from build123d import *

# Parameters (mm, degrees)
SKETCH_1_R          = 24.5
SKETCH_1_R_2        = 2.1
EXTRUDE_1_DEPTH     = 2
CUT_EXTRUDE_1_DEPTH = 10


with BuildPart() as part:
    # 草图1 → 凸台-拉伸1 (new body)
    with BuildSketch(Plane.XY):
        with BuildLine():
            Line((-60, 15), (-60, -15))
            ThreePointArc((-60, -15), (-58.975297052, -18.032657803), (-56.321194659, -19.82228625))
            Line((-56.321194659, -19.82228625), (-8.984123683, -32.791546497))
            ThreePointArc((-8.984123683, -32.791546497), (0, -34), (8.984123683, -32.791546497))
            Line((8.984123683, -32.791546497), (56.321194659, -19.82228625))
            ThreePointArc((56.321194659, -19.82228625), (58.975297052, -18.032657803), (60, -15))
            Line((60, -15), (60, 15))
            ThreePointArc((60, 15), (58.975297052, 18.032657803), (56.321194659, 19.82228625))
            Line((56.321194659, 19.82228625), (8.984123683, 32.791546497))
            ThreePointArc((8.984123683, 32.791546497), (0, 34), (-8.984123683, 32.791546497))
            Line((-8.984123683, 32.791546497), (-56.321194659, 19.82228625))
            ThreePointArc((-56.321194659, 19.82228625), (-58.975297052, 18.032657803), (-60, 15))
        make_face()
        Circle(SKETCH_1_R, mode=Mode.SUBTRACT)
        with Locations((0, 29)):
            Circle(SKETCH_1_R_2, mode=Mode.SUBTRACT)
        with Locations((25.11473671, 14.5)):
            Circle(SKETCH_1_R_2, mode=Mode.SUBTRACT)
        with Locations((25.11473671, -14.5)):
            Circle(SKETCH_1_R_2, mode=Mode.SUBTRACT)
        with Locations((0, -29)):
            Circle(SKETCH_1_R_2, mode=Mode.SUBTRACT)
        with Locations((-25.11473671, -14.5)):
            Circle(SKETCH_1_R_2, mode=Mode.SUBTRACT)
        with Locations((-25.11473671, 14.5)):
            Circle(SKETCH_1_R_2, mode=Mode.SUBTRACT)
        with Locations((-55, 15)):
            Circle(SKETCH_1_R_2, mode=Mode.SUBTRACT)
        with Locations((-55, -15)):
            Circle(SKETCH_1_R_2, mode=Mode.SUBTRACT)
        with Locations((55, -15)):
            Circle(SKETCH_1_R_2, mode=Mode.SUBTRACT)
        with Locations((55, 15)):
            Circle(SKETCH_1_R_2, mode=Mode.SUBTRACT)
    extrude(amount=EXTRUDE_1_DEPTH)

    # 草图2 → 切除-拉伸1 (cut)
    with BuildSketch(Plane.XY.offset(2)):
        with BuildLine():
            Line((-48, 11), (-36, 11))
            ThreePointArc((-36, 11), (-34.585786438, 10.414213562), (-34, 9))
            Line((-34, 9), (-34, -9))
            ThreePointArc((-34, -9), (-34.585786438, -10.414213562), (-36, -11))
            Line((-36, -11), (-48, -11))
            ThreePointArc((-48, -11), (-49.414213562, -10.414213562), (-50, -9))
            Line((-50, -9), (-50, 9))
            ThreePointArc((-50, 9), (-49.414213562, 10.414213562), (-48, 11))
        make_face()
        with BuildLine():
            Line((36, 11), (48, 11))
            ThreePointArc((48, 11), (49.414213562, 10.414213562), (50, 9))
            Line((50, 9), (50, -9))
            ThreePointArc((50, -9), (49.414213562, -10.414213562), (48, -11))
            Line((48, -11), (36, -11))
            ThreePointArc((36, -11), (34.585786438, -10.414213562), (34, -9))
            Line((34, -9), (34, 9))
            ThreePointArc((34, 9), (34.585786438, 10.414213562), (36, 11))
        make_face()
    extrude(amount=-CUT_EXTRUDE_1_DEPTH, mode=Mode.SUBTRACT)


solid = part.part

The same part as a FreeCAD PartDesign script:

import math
import FreeCAD as App
import Part
import Sketcher

doc = App.newDocument("Part")
params = doc.addObject("Spreadsheet::Sheet", "Params")
for row, (alias, value) in enumerate([
    ("sketch1_diameter", "49 mm"),
    ("sketch1_radius", "5 mm"),
    ("sketch1_radius2", "34 mm"),
    ("sketch1_diameter2", "4.2 mm"),
    ("sketch1_height", "30 mm"),
    ("pad1_length", "2 mm"),
    ("sketch2_radius", "2 mm"),
    ("sketch2_width", "12 mm"),
    ("sketch2_height", "18 mm"),
    ("pocket1_length", "10 mm"),
], start=1):
    params.set(f"A{row}", alias)
    params.set(f"B{row}", "=" + value)
    params.setAlias(f"B{row}", alias)

body = doc.addObject("PartDesign::Body", "Body")

sketch1 = body.newObject("Sketcher::SketchObject", "Sketch")
sketch1.AttachmentSupport = (doc.getObject("XY_Plane"), [""])
sketch1.MapMode = "FlatFace"
sketch1.addGeometry(Part.LineSegment(App.Vector(-60, 15, 0), App.Vector(-60, -15, 0)), False)
sketch1.addGeometry(Part.ArcOfCircle(Part.Circle(App.Vector(-55, -15, 0), App.Vector(0, 0, 1), 5), math.radians(180), math.radians(254.678265)), False)
sketch1.addGeometry(Part.LineSegment(App.Vector(-56.321195, -19.822286, 0), App.Vector(-8.984124, -32.791546, 0)), False)
sketch1.addGeometry(Part.ArcOfCircle(Part.Circle(App.Vector(0, 0, 0), App.Vector(0, 0, 1), 34), math.radians(-105.321735), math.radians(-74.678265)), False)
sketch1.addGeometry(Part.LineSegment(App.Vector(8.984124, -32.791546, 0), App.Vector(56.321195, -19.822286, 0)), False)
sketch1.addGeometry(Part.ArcOfCircle(Part.Circle(App.Vector(55, -15, 0), App.Vector(0, 0, 1), 5), math.radians(-74.678265), math.radians(0)), False)
sketch1.addGeometry(Part.LineSegment(App.Vector(60, -15, 0), App.Vector(60, 15, 0)), False)
sketch1.addGeometry(Part.ArcOfCircle(Part.Circle(App.Vector(55, 15, 0), App.Vector(0, 0, 1), 5), math.radians(0), math.radians(74.678265)), False)
sketch1.addGeometry(Part.LineSegment(App.Vector(56.321195, 19.822286, 0), App.Vector(8.984124, 32.791546, 0)), False)
sketch1.addGeometry(Part.ArcOfCircle(Part.Circle(App.Vector(0, 0, 0), App.Vector(0, 0, 1), 34), math.radians(74.678265), math.radians(105.321735)), False)
sketch1.addGeometry(Part.LineSegment(App.Vector(-8.984124, 32.791546, 0), App.Vector(-56.321195, 19.822286, 0)), False)
sketch1.addGeometry(Part.ArcOfCircle(Part.Circle(App.Vector(-55, 15, 0), App.Vector(0, 0, 1), 5), math.radians(105.321735), math.radians(180)), False)
sketch1.addGeometry(Part.Circle(App.Vector(-55, -15, 0), App.Vector(0, 0, 1), 2.1), False)
sketch1.addGeometry(Part.Circle(App.Vector(-25.114737, -14.5, 0), App.Vector(0, 0, 1), 2.1), False)
sketch1.addGeometry(Part.Circle(App.Vector(0, -29, 0), App.Vector(0, 0, 1), 2.1), False)
sketch1.addGeometry(Part.Circle(App.Vector(25.114737, -14.5, 0), App.Vector(0, 0, 1), 2.1), False)
sketch1.addGeometry(Part.Circle(App.Vector(55, -15, 0), App.Vector(0, 0, 1), 2.1), False)
sketch1.addGeometry(Part.Circle(App.Vector(-55, 15, 0), App.Vector(0, 0, 1), 2.1), False)
sketch1.addGeometry(Part.Circle(App.Vector(-25.114737, 14.5, 0), App.Vector(0, 0, 1), 2.1), False)
sketch1.addGeometry(Part.Circle(App.Vector(0, 0, 0), App.Vector(0, 0, 1), 24.5), False)
sketch1.addGeometry(Part.Circle(App.Vector(25.114737, 14.5, 0), App.Vector(0, 0, 1), 2.1), False)
sketch1.addGeometry(Part.Circle(App.Vector(55, 15, 0), App.Vector(0, 0, 1), 2.1), False)
sketch1.addGeometry(Part.Circle(App.Vector(0, 29, 0), App.Vector(0, 0, 1), 2.1), False)
sketch1.addConstraint(Sketcher.Constraint("Tangent", 0, 2, 1, 1))
sketch1.addConstraint(Sketcher.Constraint("Tangent", 1, 2, 2, 1))
sketch1.addConstraint(Sketcher.Constraint("Tangent", 2, 2, 3, 1))
sketch1.addConstraint(Sketcher.Constraint("Tangent", 3, 2, 4, 1))
sketch1.addConstraint(Sketcher.Constraint("Tangent", 4, 2, 5, 1))
sketch1.addConstraint(Sketcher.Constraint("Tangent", 5, 2, 6, 1))
sketch1.addConstraint(Sketcher.Constraint("Tangent", 6, 2, 7, 1))
sketch1.addConstraint(Sketcher.Constraint("Tangent", 7, 2, 8, 1))
sketch1.addConstraint(Sketcher.Constraint("Tangent", 8, 2, 9, 1))
sketch1.addConstraint(Sketcher.Constraint("Tangent", 9, 2, 10, 1))
sketch1.addConstraint(Sketcher.Constraint("Tangent", 10, 2, 11, 1))
sketch1.addConstraint(Sketcher.Constraint("Tangent", 11, 2, 0, 1))
sketch1.addConstraint(Sketcher.Constraint("Vertical", 0))
sketch1.addConstraint(Sketcher.Constraint("Vertical", 6))
sketch1.addConstraint(Sketcher.Constraint("Coincident", 3, 3, -1, 1))
sketch1.addConstraint(Sketcher.Constraint("Coincident", 9, 3, -1, 1))
sketch1.addConstraint(Sketcher.Constraint("Coincident", 19, 3, -1, 1))
sketch1.addConstraint(Sketcher.Constraint("Coincident", 12, 3, 1, 3))
sketch1.addConstraint(Sketcher.Constraint("Coincident", 16, 3, 5, 3))
sketch1.addConstraint(Sketcher.Constraint("Coincident", 17, 3, 11, 3))
sketch1.addConstraint(Sketcher.Constraint("Coincident", 21, 3, 7, 3))
sketch1.addConstraint(Sketcher.Constraint("Equal", 1, 5))
sketch1.addConstraint(Sketcher.Constraint("Equal", 5, 7))
sketch1.addConstraint(Sketcher.Constraint("Equal", 3, 9))
sketch1.addConstraint(Sketcher.Constraint("Equal", 7, 11))
sketch1.addConstraint(Sketcher.Constraint("Equal", 12, 13))
sketch1.addConstraint(Sketcher.Constraint("Equal", 13, 14))
sketch1.addConstraint(Sketcher.Constraint("Equal", 14, 15))
sketch1.addConstraint(Sketcher.Constraint("Equal", 15, 16))
sketch1.addConstraint(Sketcher.Constraint("Equal", 16, 17))
sketch1.addConstraint(Sketcher.Constraint("Equal", 17, 18))
sketch1.addConstraint(Sketcher.Constraint("Equal", 18, 20))
sketch1.addConstraint(Sketcher.Constraint("Equal", 20, 21))
sketch1.addConstraint(Sketcher.Constraint("Equal", 21, 22))
sketch1.addConstraint(Sketcher.Constraint("Symmetric", 1, 3, 7, 3, -1, 1))
sketch1.addConstraint(Sketcher.Constraint("Symmetric", 15, 3, 18, 3, -1, 1))
sketch1.addConstraint(Sketcher.Constraint("Symmetric", 13, 3, 20, 3, -1, 1))
sketch1.addConstraint(Sketcher.Constraint("Symmetric", 14, 3, 22, 3, -1, 1))
sketch1.addConstraint(Sketcher.Constraint("Symmetric", 13, 3, 15, 3, -2))
sketch1.addConstraint(Sketcher.Constraint("PointOnObject", 14, 3, -2))
sketch1.addConstraint(Sketcher.Constraint("Parallel", 4, 10))
sketch1.addConstraint(Sketcher.Constraint("Horizontal", 1, 3, 5, 3))
sketch1.addConstraint(Sketcher.Constraint("Diameter", 19, 49.0))
sketch1.addConstraint(Sketcher.Constraint("Radius", 1, 5.0))
sketch1.addConstraint(Sketcher.Constraint("Radius", 3, 34.0))
sketch1.addConstraint(Sketcher.Constraint("Diameter", 12, 4.2))
sketch1.addConstraint(Sketcher.Constraint("DistanceY", 0, 2, 0, 1, 30.0))
sketch1.addConstraint(Sketcher.Constraint("DistanceX", 1, 3, -1, 1, 55.0))
sketch1.addConstraint(Sketcher.Constraint("DistanceY", 14, 3, -1, 1, 29.0))
sketch1.addConstraint(Sketcher.Constraint("DistanceY", 13, 3, 18, 3, 29.0))
sketch1.addConstraint(Sketcher.Constraint("DistanceX", 13, 3, -1, 1, 25.114737))
sketch1.setExpression("Constraints[42]", "Params.sketch1_diameter")
sketch1.setExpression("Constraints[43]", "Params.sketch1_radius")
sketch1.setExpression("Constraints[44]", "Params.sketch1_radius2")
sketch1.setExpression("Constraints[45]", "Params.sketch1_diameter2")
sketch1.setExpression("Constraints[46]", "Params.sketch1_height")
pad1 = body.newObject("PartDesign::Pad", "Pad")
pad1.Profile = sketch1
pad1.setExpression("Length", "Params.pad1_length")

sketch2 = body.newObject("Sketcher::SketchObject", "Sketch001")
sketch2.AttachmentSupport = (doc.getObject("XY_Plane"), [""])
sketch2.MapMode = "FlatFace"
sketch2.AttachmentOffset = App.Placement(App.Vector(0, 0, 2), App.Rotation())
sketch2.addGeometry(Part.LineSegment(App.Vector(-36, 11, 0), App.Vector(-48, 11, 0)), False)
sketch2.addGeometry(Part.ArcOfCircle(Part.Circle(App.Vector(-48, 9, 0), App.Vector(0, 0, 1), 2), math.radians(90), math.radians(180)), False)
sketch2.addGeometry(Part.LineSegment(App.Vector(-50, 9, 0), App.Vector(-50, -9, 0)), False)
sketch2.addGeometry(Part.ArcOfCircle(Part.Circle(App.Vector(-48, -9, 0), App.Vector(0, 0, 1), 2), math.radians(-180), math.radians(-90)), False)
sketch2.addGeometry(Part.LineSegment(App.Vector(-48, -11, 0), App.Vector(-36, -11, 0)), False)
sketch2.addGeometry(Part.ArcOfCircle(Part.Circle(App.Vector(-36, -9, 0), App.Vector(0, 0, 1), 2), math.radians(-90), math.radians(0)), False)
sketch2.addGeometry(Part.LineSegment(App.Vector(-34, -9, 0), App.Vector(-34, 9, 0)), False)
sketch2.addGeometry(Part.ArcOfCircle(Part.Circle(App.Vector(-36, 9, 0), App.Vector(0, 0, 1), 2), math.radians(0), math.radians(90)), False)
sketch2.addGeometry(Part.LineSegment(App.Vector(48, 11, 0), App.Vector(36, 11, 0)), False)
sketch2.addGeometry(Part.ArcOfCircle(Part.Circle(App.Vector(36, 9, 0), App.Vector(0, 0, 1), 2), math.radians(90), math.radians(180)), False)
sketch2.addGeometry(Part.LineSegment(App.Vector(34, 9, 0), App.Vector(34, -9, 0)), False)
sketch2.addGeometry(Part.ArcOfCircle(Part.Circle(App.Vector(36, -9, 0), App.Vector(0, 0, 1), 2), math.radians(-180), math.radians(-90)), False)
sketch2.addGeometry(Part.LineSegment(App.Vector(36, -11, 0), App.Vector(48, -11, 0)), False)
sketch2.addGeometry(Part.ArcOfCircle(Part.Circle(App.Vector(48, -9, 0), App.Vector(0, 0, 1), 2), math.radians(-90), math.radians(0)), False)
sketch2.addGeometry(Part.LineSegment(App.Vector(50, -9, 0), App.Vector(50, 9, 0)), False)
sketch2.addGeometry(Part.ArcOfCircle(Part.Circle(App.Vector(48, 9, 0), App.Vector(0, 0, 1), 2), math.radians(0), math.radians(90)), False)
sketch2.addConstraint(Sketcher.Constraint("Tangent", 0, 2, 1, 1))
sketch2.addConstraint(Sketcher.Constraint("Tangent", 1, 2, 2, 1))
sketch2.addConstraint(Sketcher.Constraint("Tangent", 2, 2, 3, 1))
sketch2.addConstraint(Sketcher.Constraint("Tangent", 3, 2, 4, 1))
sketch2.addConstraint(Sketcher.Constraint("Tangent", 4, 2, 5, 1))
sketch2.addConstraint(Sketcher.Constraint("Tangent", 5, 2, 6, 1))
sketch2.addConstraint(Sketcher.Constraint("Tangent", 6, 2, 7, 1))
sketch2.addConstraint(Sketcher.Constraint("Tangent", 7, 2, 0, 1))
sketch2.addConstraint(Sketcher.Constraint("Tangent", 8, 2, 9, 1))
sketch2.addConstraint(Sketcher.Constraint("Tangent", 9, 2, 10, 1))
sketch2.addConstraint(Sketcher.Constraint("Tangent", 10, 2, 11, 1))
sketch2.addConstraint(Sketcher.Constraint("Tangent", 11, 2, 12, 1))
sketch2.addConstraint(Sketcher.Constraint("Tangent", 12, 2, 13, 1))
sketch2.addConstraint(Sketcher.Constraint("Tangent", 13, 2, 14, 1))
sketch2.addConstraint(Sketcher.Constraint("Tangent", 14, 2, 15, 1))
sketch2.addConstraint(Sketcher.Constraint("Tangent", 15, 2, 8, 1))
sketch2.addConstraint(Sketcher.Constraint("Horizontal", 0))
sketch2.addConstraint(Sketcher.Constraint("Vertical", 2))
sketch2.addConstraint(Sketcher.Constraint("Horizontal", 4))
sketch2.addConstraint(Sketcher.Constraint("Vertical", 6))
sketch2.addConstraint(Sketcher.Constraint("Horizontal", 8))
sketch2.addConstraint(Sketcher.Constraint("Vertical", 10))
sketch2.addConstraint(Sketcher.Constraint("Horizontal", 12))
sketch2.addConstraint(Sketcher.Constraint("Vertical", 14))
sketch2.addConstraint(Sketcher.Constraint("Equal", 1, 3))
sketch2.addConstraint(Sketcher.Constraint("Equal", 3, 5))
sketch2.addConstraint(Sketcher.Constraint("Equal", 5, 7))
sketch2.addConstraint(Sketcher.Constraint("Equal", 7, 9))
sketch2.addConstraint(Sketcher.Constraint("Equal", 9, 11))
sketch2.addConstraint(Sketcher.Constraint("Equal", 11, 13))
sketch2.addConstraint(Sketcher.Constraint("Equal", 13, 15))
sketch2.addConstraint(Sketcher.Constraint("Symmetric", 5, 3, 9, 3, -1, 1))
sketch2.addConstraint(Sketcher.Constraint("Symmetric", 1, 3, 13, 3, -1, 1))
sketch2.addConstraint(Sketcher.Constraint("Horizontal", 7, 3, 9, 3))
sketch2.addConstraint(Sketcher.Constraint("Radius", 1, 2.0))
sketch2.addConstraint(Sketcher.Constraint("DistanceX", 0, 2, 0, 1, 12.0))
sketch2.addConstraint(Sketcher.Constraint("DistanceY", 2, 2, 2, 1, 18.0))
sketch2.addConstraint(Sketcher.Constraint("DistanceX", 1, 3, -1, 1, 48.0))
sketch2.setExpression("Constraints[34]", "Params.sketch2_radius")
sketch2.setExpression("Constraints[35]", "Params.sketch2_width")
sketch2.setExpression("Constraints[36]", "Params.sketch2_height")
pocket1 = body.newObject("PartDesign::Pocket", "Pocket")
pocket1.Profile = sketch2
pocket1.setExpression("Length", "Params.pocket1_length")

doc.recompute()
